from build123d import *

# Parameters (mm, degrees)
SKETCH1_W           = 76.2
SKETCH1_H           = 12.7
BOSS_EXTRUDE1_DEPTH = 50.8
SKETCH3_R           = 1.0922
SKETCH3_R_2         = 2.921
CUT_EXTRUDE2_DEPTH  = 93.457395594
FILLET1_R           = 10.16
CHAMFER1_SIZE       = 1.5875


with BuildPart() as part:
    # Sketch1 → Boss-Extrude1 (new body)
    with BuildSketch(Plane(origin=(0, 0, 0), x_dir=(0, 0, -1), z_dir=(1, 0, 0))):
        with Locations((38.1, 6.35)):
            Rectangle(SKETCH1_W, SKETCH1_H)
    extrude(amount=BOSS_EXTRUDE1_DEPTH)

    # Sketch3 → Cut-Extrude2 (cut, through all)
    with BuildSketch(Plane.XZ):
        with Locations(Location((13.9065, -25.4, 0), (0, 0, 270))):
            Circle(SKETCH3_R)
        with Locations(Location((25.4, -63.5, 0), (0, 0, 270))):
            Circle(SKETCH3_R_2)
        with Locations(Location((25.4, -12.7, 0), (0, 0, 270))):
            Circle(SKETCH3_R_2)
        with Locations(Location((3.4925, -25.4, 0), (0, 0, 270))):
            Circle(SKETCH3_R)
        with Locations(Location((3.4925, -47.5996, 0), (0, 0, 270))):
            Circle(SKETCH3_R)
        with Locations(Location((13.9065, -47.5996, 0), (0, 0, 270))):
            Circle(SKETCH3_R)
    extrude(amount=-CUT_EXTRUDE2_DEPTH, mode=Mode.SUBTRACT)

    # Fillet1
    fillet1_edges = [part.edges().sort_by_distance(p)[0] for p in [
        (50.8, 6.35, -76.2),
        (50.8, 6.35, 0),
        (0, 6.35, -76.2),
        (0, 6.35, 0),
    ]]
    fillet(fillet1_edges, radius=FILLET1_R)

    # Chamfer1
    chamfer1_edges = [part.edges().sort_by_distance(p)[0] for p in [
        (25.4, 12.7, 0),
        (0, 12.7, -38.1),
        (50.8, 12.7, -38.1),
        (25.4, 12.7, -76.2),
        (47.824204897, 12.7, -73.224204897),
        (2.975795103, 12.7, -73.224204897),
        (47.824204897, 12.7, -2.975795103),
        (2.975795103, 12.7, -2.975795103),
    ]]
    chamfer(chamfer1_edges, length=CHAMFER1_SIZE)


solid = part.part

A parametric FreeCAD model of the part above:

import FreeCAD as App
import Part
import Sketcher
from FreeCAD import Vector
Q = App.Units.Quantity


def edges_at(feature, points):
    """Names of the edges that pass closest to the given points."""
    edges = feature.Shape.Edges
    near = lambda p: min(range(len(edges)), key=lambda i: edges[i].distToShape(Part.Vertex(*p))[0])
    return sorted({f"Edge{near(p) + 1}" for p in points})

doc = App.newDocument("Part")
body = doc.addObject("PartDesign::Body", "Body")

sketch1 = doc.addObject("Sketcher::SketchObject", "Sketch")
body.addObject(sketch1)
sketch1.AttachmentSupport = (doc.YZ_Plane, [""])
sketch1.MapMode = "FlatFace"
sketch1.addGeometry(Part.LineSegment(Vector(13, 0, 0), Vector(0, 0, 0)), False)
sketch1.addGeometry(Part.LineSegment(Vector(0, 0, 0), Vector(0, -76, 0)), False)
sketch1.addGeometry(Part.LineSegment(Vector(0, -76, 0), Vector(13, -76, 0)), False)
sketch1.addGeometry(Part.LineSegment(Vector(13, -76, 0), Vector(13, 0, 0)), False)
sketch1.addConstraint(Sketcher.Constraint("Coincident", 0, 2, 1, 1))
sketch1.addConstraint(Sketcher.Constraint("Coincident", 1, 2, 2, 1))
sketch1.addConstraint(Sketcher.Constraint("Coincident", 2, 2, 3, 1))
sketch1.addConstraint(Sketcher.Constraint("Coincident", 3, 2, 0, 1))
sketch1.addConstraint(Sketcher.Constraint("Horizontal", 0))
sketch1.addConstraint(Sketcher.Constraint("Vertical", 1))
sketch1.addConstraint(Sketcher.Constraint("Horizontal", 2))
sketch1.addConstraint(Sketcher.Constraint("Vertical", 3))
sketch1.addConstraint(Sketcher.Constraint("Coincident", 0, 2, -1, 1))
sketch1.addConstraint(Sketcher.Constraint("DistanceY", 1, 2, 1, 1, Q("3 in")))
sketch1.addConstraint(Sketcher.Constraint("DistanceX", 0, 2, 0, 1, Q("0.5 in")))
pad1 = doc.addObject("PartDesign::Pad", "Pad")
body.addObject(pad1)
pad1.Profile = sketch1
pad1.Length = Q("2 in")

sketch2 = doc.addObject("Sketcher::SketchObject", "Sketch001")
body.addObject(sketch2)
sketch2.AttachmentSupport = (doc.XZ_Plane, [""])
sketch2.MapMode = "FlatFace"
sketch2.addGeometry(Part.Circle(Vector(13.9, -25.4, 0), Vector(0, 0, 1), 1.1), False)
sketch2.addGeometry(Part.Circle(Vector(25.4, -63.5, 0), Vector(0, 0, 1), 2.9), False)
sketch2.addGeometry(Part.Circle(Vector(25.4, -12.7, 0), Vector(0, 0, 1), 2.9), False)
sketch2.addGeometry(Part.Circle(Vector(3.5, -25.4, 0), Vector(0, 0, 1), 1.1), False)
sketch2.addGeometry(Part.Circle(Vector(3.5, -47.6, 0), Vector(0, 0, 1), 1.1), False)
sketch2.addGeometry(Part.Circle(Vector(13.9, -47.6, 0), Vector(0, 0, 1), 1.1), False)
sketch2.addConstraint(Sketcher.Constraint("Equal", 1, 2))
sketch2.addConstraint(Sketcher.Constraint("Equal", 0, 3))
sketch2.addConstraint(Sketcher.Constraint("Equal", 3, 4))
sketch2.addConstraint(Sketcher.Constraint("Equal", 4, 5))
sketch2.addConstraint(Sketcher.Constraint("Horizontal", 0, 3, 3, 3))
sketch2.addConstraint(Sketcher.Constraint("Horizontal", 4, 3, 5, 3))
sketch2.addConstraint(Sketcher.Constraint("Vertical", 1, 3, 2, 3))
sketch2.addConstraint(Sketcher.Constraint("Vertical", 3, 3, 4, 3))
sketch2.addConstraint(Sketcher.Constraint("Vertical", 0, 3, 5, 3))
sketch2.addConstraint(Sketcher.Constraint("Diameter", 1, Q("0.23 in")))
sketch2.addConstraint(Sketcher.Constraint("Diameter", 0, Q("0.086 in")))
sketch2.addConstraint(Sketcher.Constraint("DistanceY", 0, 3, -1, 1, Q("1 in")))
sketch2.addConstraint(Sketcher.Constraint("DistanceX", -1, 1, 1, 3, Q("1 in")))
sketch2.addConstraint(Sketcher.Constraint("DistanceY", 1, 3, 2, 3, Q("2 in")))
sketch2.addConstraint(Sketcher.Constraint("DistanceY", 1, 3, -1, 1, Q("2.5 in")))
sketch2.addConstraint(Sketcher.Constraint("DistanceX", 3, 3, 0, 3, Q("0.41 in")))
sketch2.addConstraint(Sketcher.Constraint("DistanceY", 4, 3, -1, 1, Q("1.874 in")))
sketch2.addConstraint(Sketcher.Constraint("DistanceX", -1, 1, 0, 3, Q("0.5475 in")))
pocket1 = doc.addObject("PartDesign::Pocket", "Pocket")
body.addObject(pocket1)
pocket1.Profile = sketch2
pocket1.Type = "ThroughAll"
doc.recompute()

fillet = doc.addObject("PartDesign::Fillet", "Fillet")
body.addObject(fillet)
fillet.Base = (pocket1, edges_at(pocket1, [
    (50.8, 6.35, -76.2),
    (50.8, 6.35, 0),
    (0, 6.35, -76.2),
    (0, 6.35, 0),
]))
fillet.Radius = Q("0.4 in")
doc.recompute()

chamfer = doc.addObject("PartDesign::Chamfer", "Chamfer")
body.addObject(chamfer)
chamfer.Base = (fillet, edges_at(fillet, [
    (25.4, 12.7, 0),
    (0, 12.7, -38.1),
    (50.8, 12.7, -38.1),
    (25.4, 12.7, -76.2),
    (47.824, 12.7, -73.224),
    (2.976, 12.7, -73.224),
    (47.824, 12.7, -2.976),
    (2.976, 12.7, -2.976),
]))
chamfer.Size = Q("0.0625 in")

doc.recompute()
